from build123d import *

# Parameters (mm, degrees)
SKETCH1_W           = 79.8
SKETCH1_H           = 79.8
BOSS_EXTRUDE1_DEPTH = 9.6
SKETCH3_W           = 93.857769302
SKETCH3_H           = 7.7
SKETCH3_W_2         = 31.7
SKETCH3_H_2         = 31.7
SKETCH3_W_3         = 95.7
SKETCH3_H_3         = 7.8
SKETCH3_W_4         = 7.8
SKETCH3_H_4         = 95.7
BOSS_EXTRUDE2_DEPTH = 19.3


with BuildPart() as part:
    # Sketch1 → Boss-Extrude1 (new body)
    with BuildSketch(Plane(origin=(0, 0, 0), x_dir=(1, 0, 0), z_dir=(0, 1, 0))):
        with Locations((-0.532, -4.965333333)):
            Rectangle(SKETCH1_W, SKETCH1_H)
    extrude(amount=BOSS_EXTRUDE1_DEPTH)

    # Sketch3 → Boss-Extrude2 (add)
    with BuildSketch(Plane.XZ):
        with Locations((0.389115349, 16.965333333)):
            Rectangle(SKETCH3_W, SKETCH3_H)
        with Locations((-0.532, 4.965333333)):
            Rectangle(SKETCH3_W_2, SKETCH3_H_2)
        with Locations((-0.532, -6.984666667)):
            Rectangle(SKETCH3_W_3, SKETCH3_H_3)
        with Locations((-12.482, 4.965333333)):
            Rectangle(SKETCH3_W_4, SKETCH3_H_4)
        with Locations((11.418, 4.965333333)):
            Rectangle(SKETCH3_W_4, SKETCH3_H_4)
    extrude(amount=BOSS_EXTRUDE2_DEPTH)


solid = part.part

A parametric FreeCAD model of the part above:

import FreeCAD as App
import Part
import Sketcher

V = App.Vector


def add_polygon(sketch, points):
    """Adds a closed chain of lines whose ends are joined by coincident constraints."""
    first, n = sketch.GeometryCount, len(points)
    for a, b in zip(points, points[1:] + points[:1]):
        sketch.addGeometry(Part.LineSegment(App.Vector(*a, 0), App.Vector(*b, 0)), False)
    for i in range(n):
        sketch.addConstraint(Sketcher.Constraint("Coincident", first + i, 2, first + (i + 1) % n, 1))

doc = App.newDocument("Part")
body = doc.addObject("PartDesign::Body", "Body")

sketch1 = body.newObject("Sketcher::SketchObject", "Sketch")
sketch1.AttachmentSupport = (doc.getObject("XZ_Plane"), [""])
sketch1.MapMode = "FlatFace"
add_polygon(sketch1, [(-40.432, -34.934667), (-40.432, 44.865333), (39.368, 44.865333), (39.368, -34.934667)])
sketch1.addConstraint([
    Sketcher.Constraint("Vertical", 0),
    Sketcher.Constraint("Horizontal", 1),
    Sketcher.Constraint("Vertical", 2),
    Sketcher.Constraint("Horizontal", 3),
    Sketcher.Constraint("Equal", 3, 0),
    Sketcher.Constraint("DistanceX", 1, 1, 1, 2, 79.8),
    Sketcher.Constraint("DistanceX", 0, 2, -1, 1, 40.432),
    Sketcher.Constraint("DistanceY", -1, 1, 0, 2, 44.865333),
])
pad1 = body.newObject("PartDesign::Pad", "Pad")
pad1.Profile = sketch1
pad1.Length = 9.6
pad1.Reversed = True

sketch2 = body.newObject("Sketcher::SketchObject", "Sketch001")
sketch2.AttachmentSupport = (doc.getObject("XZ_Plane"), [""])
sketch2.MapMode = "FlatFace"
add_polygon(sketch2, [(-46.539769, 20.815333), (-46.539769, 13.115333), (-16.382, 13.115333), (-16.382, -3.084667), (-48.382, -3.084667), (-48.382, -10.884667), (-16.382, -10.884667), (-16.382, -42.884667), (-8.582, -42.884667), (-8.582, -10.884667), (7.518, -10.884667), (7.518, -42.884667), (15.318, -42.884667), (15.318, -10.884667), (47.318, -10.884667), (47.318, -3.084667), (15.318, -3.084667), (15.318, 13.115333), (47.318, 13.115333), (47.318, 20.815333), (15.318, 20.815333), (15.318, 52.815333), (7.518, 52.815333), (7.518, 20.815333), (-8.582, 20.815333), (-8.582, 52.815333), (-16.382, 52.815333), (-16.382, 20.815333)])
sketch2.addConstraint([
    Sketcher.Constraint("Vertical", 0),
    Sketcher.Constraint("Horizontal", 1),
    Sketcher.Constraint("Vertical", 2),
    Sketcher.Constraint("Horizontal", 3),
    Sketcher.Constraint("Vertical", 4),
    Sketcher.Constraint("Horizontal", 5),
    Sketcher.Constraint("Vertical", 6),
    Sketcher.Constraint("Horizontal", 7),
    Sketcher.Constraint("Vertical", 8),
    Sketcher.Constraint("Horizontal", 9),
    Sketcher.Constraint("Vertical", 10),
    Sketcher.Constraint("Horizontal", 11),
    Sketcher.Constraint("Vertical", 12),
    Sketcher.Constraint("Horizontal", 13),
    Sketcher.Constraint("Vertical", 14),
    Sketcher.Constraint("Horizontal", 15),
    Sketcher.Constraint("Vertical", 16),
    Sketcher.Constraint("Horizontal", 17),
    Sketcher.Constraint("Vertical", 18),
    Sketcher.Constraint("Horizontal", 19),
    Sketcher.Constraint("Vertical", 20),
    Sketcher.Constraint("Horizontal", 21),
    Sketcher.Constraint("Vertical", 22),
    Sketcher.Constraint("Horizontal", 23),
    Sketcher.Constraint("Vertical", 24),
    Sketcher.Constraint("Horizontal", 25),
    Sketcher.Constraint("Vertical", 26),
    Sketcher.Constraint("Horizontal", 27),
    Sketcher.Constraint("Horizontal", 5, 2, 8, 2),
    Sketcher.Constraint("Horizontal", 7, 2, 10, 2),
    Sketcher.Constraint("Horizontal", 9, 2, 12, 2),
    Sketcher.Constraint("Horizontal", 3, 2, 14, 2),
    Sketcher.Constraint("Horizontal", 1, 2, 16, 2),
    Sketcher.Constraint("Horizontal", 19, 2, 22, 2),
    Sketcher.Constraint("Horizontal", 21, 2, 24, 2),
    Sketcher.Constraint("Horizontal", 23, 2, 26, 2),
    Sketcher.Constraint("Vertical", 2, 2, 5, 2),
    Sketcher.Constraint("Vertical", 12, 2, 15, 2),
    Sketcher.Constraint("Vertical", 14, 2, 17, 2),
    Sketcher.Constraint("Vertical", 16, 2, 19, 2),
    Sketcher.Constraint("Vertical", 10, 2, 21, 2),
    Sketcher.Constraint("Vertical", 8, 2, 23, 2),
    Sketcher.Constraint("Vertical", 6, 2, 25, 2),
    Sketcher.Constraint("Equal", 7, 11),
    Sketcher.Constraint("Equal", 5, 13),
    Sketcher.Constraint("Equal", 25, 4),
    Sketcher.Constraint("Equal", 19, 6),
    Sketcher.Constraint("Equal", 12, 20),
    Sketcher.Constraint("DistanceX", 3, 2, 3, 1, 32.0),
    Sketcher.Constraint("DistanceX", 7, 1, 7, 2, 7.8),
    Sketcher.Constraint("DistanceX", 9, 1, 9, 2, 16.1),
    Sketcher.Constraint("DistanceY", 0, 2, 0, 1, 7.7),
    Sketcher.Constraint("DistanceY", 2, 2, 2, 1, 16.2),
    Sketcher.Constraint("DistanceX", 1, 2, -1, 1, 16.382),
    Sketcher.Constraint("DistanceX", 1, 1, 1, 2, 30.157769),
    Sketcher.Constraint("DistanceY", -1, 1, 0, 2, 13.115333),
])
pad2 = body.newObject("PartDesign::Pad", "Pad001")
pad2.Profile = sketch2
pad2.Length = 19.3

doc.recompute()
